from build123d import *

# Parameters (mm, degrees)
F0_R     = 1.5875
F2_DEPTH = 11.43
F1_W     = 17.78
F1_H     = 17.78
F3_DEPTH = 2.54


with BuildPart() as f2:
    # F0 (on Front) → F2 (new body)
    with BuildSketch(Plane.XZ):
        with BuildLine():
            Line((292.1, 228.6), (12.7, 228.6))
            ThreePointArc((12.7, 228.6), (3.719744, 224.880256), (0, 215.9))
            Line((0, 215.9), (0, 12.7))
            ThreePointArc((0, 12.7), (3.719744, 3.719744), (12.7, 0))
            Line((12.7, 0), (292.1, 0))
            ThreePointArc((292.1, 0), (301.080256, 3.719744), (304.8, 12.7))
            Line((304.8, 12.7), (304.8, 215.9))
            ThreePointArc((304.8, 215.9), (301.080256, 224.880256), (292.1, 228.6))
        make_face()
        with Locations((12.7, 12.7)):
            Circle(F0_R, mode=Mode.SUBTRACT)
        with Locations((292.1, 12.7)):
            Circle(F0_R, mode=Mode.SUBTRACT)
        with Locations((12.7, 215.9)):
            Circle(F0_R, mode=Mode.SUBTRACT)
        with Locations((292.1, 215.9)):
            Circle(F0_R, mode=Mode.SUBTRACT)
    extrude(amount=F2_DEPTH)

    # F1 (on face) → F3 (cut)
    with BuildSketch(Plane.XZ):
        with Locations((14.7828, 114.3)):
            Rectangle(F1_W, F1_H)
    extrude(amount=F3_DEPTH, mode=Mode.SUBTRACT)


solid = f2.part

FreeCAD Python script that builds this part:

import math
import FreeCAD as App
import Part
import Sketcher

V = App.Vector
Q = App.Units.Quantity

doc = App.newDocument("Part")
params = doc.addObject("Spreadsheet::Sheet", "Params")
for row, (alias, value) in enumerate([
    ("sketch1_radius", "0.5 in"),
    ("sketch1_width", "11 in"),
    ("sketch1_height", "8 in"),
    ("sketch1_diameter", "0.125 in"),
    ("pad1_length", "0.45 in"),
    ("sketch2_width", "0.7 in"),
    ("pocket1_length", "0.1 in"),
], start=1):
    params.set(f"A{row}", alias)
    params.set(f"B{row}", "=" + value)
    params.setAlias(f"B{row}", alias)

body = doc.addObject("PartDesign::Body", "Body")

# Sketch on XZ plane
sketch1 = body.newObject("Sketcher::SketchObject", "Sketch")
sketch1.AttachmentSupport = (doc.getObject("XZ_Plane"), [""])
sketch1.MapMode = "FlatFace"
sketch1.addGeometry([
    Part.LineSegment(V(292.1, 228.6, 0), V(12.7, 228.6, 0)),  # 0
    Part.ArcOfCircle(Part.Circle(V(12.7, 215.9, 0), V(0, 0, 1), 12.7), math.radians(90), math.radians(180)),  # 1
    Part.LineSegment(V(0, 215.9, 0), V(0, 12.7, 0)),  # 2
    Part.ArcOfCircle(Part.Circle(V(12.7, 12.7, 0), V(0, 0, 1), 12.7), math.radians(-180), math.radians(-90)),  # 3
    Part.LineSegment(V(12.7, 0, 0), V(292.1, 0, 0)),  # 4
    Part.ArcOfCircle(Part.Circle(V(292.1, 12.7, 0), V(0, 0, 1), 12.7), math.radians(-90), math.radians(0)),  # 5
    Part.LineSegment(V(304.8, 12.7, 0), V(304.8, 215.9, 0)),  # 6
    Part.ArcOfCircle(Part.Circle(V(292.1, 215.9, 0), V(0, 0, 1), 12.7), math.radians(0), math.radians(90)),  # 7
    Part.Circle(V(12.7, 12.7, 0), V(0, 0, 1), 1.6),  # 8
    Part.Circle(V(292.1, 12.7, 0), V(0, 0, 1), 1.6),  # 9
    Part.Circle(V(12.7, 215.9, 0), V(0, 0, 1), 1.6),  # 10
    Part.Circle(V(292.1, 215.9, 0), V(0, 0, 1), 1.6),  # 11
], False)
sketch1.addConstraint([
    Sketcher.Constraint("Tangent", 0, 2, 1, 1),
    Sketcher.Constraint("Tangent", 1, 2, 2, 1),
    Sketcher.Constraint("Tangent", 2, 2, 3, 1),
    Sketcher.Constraint("Tangent", 3, 2, 4, 1),
    Sketcher.Constraint("Tangent", 4, 2, 5, 1),
    Sketcher.Constraint("Tangent", 5, 2, 6, 1),
    Sketcher.Constraint("Tangent", 6, 2, 7, 1),
    Sketcher.Constraint("Tangent", 7, 2, 0, 1),
    Sketcher.Constraint("Horizontal", 0),
    Sketcher.Constraint("Vertical", 2),
    Sketcher.Constraint("Horizontal", 4),
    Sketcher.Constraint("Vertical", 6),
    Sketcher.Constraint("Coincident", 8, 3, 3, 3),
    Sketcher.Constraint("Coincident", 9, 3, 5, 3),
    Sketcher.Constraint("Coincident", 10, 3, 1, 3),
    Sketcher.Constraint("Coincident", 11, 3, 7, 3),
    Sketcher.Constraint("Equal", 1, 3),
    Sketcher.Constraint("Equal", 3, 5),
    Sketcher.Constraint("Equal", 5, 7),
    Sketcher.Constraint("Equal", 8, 9),
    Sketcher.Constraint("Equal", 9, 10),
    Sketcher.Constraint("Equal", 10, 11),
    Sketcher.Constraint("PointOnObject", 1, 2, -2),
    Sketcher.Constraint("PointOnObject", 3, 2, -1),
    Sketcher.Constraint("Radius", 1, Q("0.5 in")),
    Sketcher.Constraint("DistanceX", 0, 2, 0, 1, Q("11 in")),
    Sketcher.Constraint("DistanceY", 2, 2, 2, 1, Q("8 in")),
    Sketcher.Constraint("Diameter", 8, Q("0.125 in")),
])
sketch1.setExpression("Constraints[24]", "Params.sketch1_radius")
sketch1.setExpression("Constraints[25]", "Params.sketch1_width")
sketch1.setExpression("Constraints[26]", "Params.sketch1_height")
sketch1.setExpression("Constraints[27]", "Params.sketch1_diameter")
pad1 = body.newObject("PartDesign::Pad", "Pad")
pad1.Profile = sketch1
pad1.setExpression("Length", "Params.pad1_length")

# Sketch on XZ plane
sketch2 = body.newObject("Sketcher::SketchObject", "Sketch001")
sketch2.AttachmentSupport = (doc.getObject("XZ_Plane"), [""])
sketch2.MapMode = "FlatFace"
sketch2.addGeometry([
    Part.LineSegment(V(6, 123, 0), V(6, 105, 0)),
    Part.LineSegment(V(6, 105, 0), V(24, 105, 0)),
    Part.LineSegment(V(24, 105, 0), V(24, 123, 0)),
    Part.LineSegment(V(24, 123, 0), V(6, 123, 0)),
], False)
sketch2.addConstraint([
    Sketcher.Constraint("Coincident", 0, 2, 1, 1),
    Sketcher.Constraint("Coincident", 1, 2, 2, 1),
    Sketcher.Constraint("Coincident", 2, 2, 3, 1),
    Sketcher.Constraint("Coincident", 3, 2, 0, 1),
    Sketcher.Constraint("Vertical", 0),
    Sketcher.Constraint("Horizontal", 1),
    Sketcher.Constraint("Vertical", 2),
    Sketcher.Constraint("Horizontal", 3),
    Sketcher.Constraint("Equal", 3, 0),
    Sketcher.Constraint("DistanceX", 1, 1, 1, 2, Q("0.7 in")),
    Sketcher.Constraint("DistanceY", -1, 1, 0, 2, Q("4.15 in")),
    Sketcher.Constraint("DistanceX", -1, 1, 0, 2, Q("0.232 in")),
])
sketch2.setExpression("Constraints[9]", "Params.sketch2_width")
pocket1 = body.newObject("PartDesign::Pocket", "Pocket")
pocket1.Profile = sketch2
pocket1.setExpression("Length", "Params.pocket1_length")
pocket1.Reversed = True

doc.recompute()
